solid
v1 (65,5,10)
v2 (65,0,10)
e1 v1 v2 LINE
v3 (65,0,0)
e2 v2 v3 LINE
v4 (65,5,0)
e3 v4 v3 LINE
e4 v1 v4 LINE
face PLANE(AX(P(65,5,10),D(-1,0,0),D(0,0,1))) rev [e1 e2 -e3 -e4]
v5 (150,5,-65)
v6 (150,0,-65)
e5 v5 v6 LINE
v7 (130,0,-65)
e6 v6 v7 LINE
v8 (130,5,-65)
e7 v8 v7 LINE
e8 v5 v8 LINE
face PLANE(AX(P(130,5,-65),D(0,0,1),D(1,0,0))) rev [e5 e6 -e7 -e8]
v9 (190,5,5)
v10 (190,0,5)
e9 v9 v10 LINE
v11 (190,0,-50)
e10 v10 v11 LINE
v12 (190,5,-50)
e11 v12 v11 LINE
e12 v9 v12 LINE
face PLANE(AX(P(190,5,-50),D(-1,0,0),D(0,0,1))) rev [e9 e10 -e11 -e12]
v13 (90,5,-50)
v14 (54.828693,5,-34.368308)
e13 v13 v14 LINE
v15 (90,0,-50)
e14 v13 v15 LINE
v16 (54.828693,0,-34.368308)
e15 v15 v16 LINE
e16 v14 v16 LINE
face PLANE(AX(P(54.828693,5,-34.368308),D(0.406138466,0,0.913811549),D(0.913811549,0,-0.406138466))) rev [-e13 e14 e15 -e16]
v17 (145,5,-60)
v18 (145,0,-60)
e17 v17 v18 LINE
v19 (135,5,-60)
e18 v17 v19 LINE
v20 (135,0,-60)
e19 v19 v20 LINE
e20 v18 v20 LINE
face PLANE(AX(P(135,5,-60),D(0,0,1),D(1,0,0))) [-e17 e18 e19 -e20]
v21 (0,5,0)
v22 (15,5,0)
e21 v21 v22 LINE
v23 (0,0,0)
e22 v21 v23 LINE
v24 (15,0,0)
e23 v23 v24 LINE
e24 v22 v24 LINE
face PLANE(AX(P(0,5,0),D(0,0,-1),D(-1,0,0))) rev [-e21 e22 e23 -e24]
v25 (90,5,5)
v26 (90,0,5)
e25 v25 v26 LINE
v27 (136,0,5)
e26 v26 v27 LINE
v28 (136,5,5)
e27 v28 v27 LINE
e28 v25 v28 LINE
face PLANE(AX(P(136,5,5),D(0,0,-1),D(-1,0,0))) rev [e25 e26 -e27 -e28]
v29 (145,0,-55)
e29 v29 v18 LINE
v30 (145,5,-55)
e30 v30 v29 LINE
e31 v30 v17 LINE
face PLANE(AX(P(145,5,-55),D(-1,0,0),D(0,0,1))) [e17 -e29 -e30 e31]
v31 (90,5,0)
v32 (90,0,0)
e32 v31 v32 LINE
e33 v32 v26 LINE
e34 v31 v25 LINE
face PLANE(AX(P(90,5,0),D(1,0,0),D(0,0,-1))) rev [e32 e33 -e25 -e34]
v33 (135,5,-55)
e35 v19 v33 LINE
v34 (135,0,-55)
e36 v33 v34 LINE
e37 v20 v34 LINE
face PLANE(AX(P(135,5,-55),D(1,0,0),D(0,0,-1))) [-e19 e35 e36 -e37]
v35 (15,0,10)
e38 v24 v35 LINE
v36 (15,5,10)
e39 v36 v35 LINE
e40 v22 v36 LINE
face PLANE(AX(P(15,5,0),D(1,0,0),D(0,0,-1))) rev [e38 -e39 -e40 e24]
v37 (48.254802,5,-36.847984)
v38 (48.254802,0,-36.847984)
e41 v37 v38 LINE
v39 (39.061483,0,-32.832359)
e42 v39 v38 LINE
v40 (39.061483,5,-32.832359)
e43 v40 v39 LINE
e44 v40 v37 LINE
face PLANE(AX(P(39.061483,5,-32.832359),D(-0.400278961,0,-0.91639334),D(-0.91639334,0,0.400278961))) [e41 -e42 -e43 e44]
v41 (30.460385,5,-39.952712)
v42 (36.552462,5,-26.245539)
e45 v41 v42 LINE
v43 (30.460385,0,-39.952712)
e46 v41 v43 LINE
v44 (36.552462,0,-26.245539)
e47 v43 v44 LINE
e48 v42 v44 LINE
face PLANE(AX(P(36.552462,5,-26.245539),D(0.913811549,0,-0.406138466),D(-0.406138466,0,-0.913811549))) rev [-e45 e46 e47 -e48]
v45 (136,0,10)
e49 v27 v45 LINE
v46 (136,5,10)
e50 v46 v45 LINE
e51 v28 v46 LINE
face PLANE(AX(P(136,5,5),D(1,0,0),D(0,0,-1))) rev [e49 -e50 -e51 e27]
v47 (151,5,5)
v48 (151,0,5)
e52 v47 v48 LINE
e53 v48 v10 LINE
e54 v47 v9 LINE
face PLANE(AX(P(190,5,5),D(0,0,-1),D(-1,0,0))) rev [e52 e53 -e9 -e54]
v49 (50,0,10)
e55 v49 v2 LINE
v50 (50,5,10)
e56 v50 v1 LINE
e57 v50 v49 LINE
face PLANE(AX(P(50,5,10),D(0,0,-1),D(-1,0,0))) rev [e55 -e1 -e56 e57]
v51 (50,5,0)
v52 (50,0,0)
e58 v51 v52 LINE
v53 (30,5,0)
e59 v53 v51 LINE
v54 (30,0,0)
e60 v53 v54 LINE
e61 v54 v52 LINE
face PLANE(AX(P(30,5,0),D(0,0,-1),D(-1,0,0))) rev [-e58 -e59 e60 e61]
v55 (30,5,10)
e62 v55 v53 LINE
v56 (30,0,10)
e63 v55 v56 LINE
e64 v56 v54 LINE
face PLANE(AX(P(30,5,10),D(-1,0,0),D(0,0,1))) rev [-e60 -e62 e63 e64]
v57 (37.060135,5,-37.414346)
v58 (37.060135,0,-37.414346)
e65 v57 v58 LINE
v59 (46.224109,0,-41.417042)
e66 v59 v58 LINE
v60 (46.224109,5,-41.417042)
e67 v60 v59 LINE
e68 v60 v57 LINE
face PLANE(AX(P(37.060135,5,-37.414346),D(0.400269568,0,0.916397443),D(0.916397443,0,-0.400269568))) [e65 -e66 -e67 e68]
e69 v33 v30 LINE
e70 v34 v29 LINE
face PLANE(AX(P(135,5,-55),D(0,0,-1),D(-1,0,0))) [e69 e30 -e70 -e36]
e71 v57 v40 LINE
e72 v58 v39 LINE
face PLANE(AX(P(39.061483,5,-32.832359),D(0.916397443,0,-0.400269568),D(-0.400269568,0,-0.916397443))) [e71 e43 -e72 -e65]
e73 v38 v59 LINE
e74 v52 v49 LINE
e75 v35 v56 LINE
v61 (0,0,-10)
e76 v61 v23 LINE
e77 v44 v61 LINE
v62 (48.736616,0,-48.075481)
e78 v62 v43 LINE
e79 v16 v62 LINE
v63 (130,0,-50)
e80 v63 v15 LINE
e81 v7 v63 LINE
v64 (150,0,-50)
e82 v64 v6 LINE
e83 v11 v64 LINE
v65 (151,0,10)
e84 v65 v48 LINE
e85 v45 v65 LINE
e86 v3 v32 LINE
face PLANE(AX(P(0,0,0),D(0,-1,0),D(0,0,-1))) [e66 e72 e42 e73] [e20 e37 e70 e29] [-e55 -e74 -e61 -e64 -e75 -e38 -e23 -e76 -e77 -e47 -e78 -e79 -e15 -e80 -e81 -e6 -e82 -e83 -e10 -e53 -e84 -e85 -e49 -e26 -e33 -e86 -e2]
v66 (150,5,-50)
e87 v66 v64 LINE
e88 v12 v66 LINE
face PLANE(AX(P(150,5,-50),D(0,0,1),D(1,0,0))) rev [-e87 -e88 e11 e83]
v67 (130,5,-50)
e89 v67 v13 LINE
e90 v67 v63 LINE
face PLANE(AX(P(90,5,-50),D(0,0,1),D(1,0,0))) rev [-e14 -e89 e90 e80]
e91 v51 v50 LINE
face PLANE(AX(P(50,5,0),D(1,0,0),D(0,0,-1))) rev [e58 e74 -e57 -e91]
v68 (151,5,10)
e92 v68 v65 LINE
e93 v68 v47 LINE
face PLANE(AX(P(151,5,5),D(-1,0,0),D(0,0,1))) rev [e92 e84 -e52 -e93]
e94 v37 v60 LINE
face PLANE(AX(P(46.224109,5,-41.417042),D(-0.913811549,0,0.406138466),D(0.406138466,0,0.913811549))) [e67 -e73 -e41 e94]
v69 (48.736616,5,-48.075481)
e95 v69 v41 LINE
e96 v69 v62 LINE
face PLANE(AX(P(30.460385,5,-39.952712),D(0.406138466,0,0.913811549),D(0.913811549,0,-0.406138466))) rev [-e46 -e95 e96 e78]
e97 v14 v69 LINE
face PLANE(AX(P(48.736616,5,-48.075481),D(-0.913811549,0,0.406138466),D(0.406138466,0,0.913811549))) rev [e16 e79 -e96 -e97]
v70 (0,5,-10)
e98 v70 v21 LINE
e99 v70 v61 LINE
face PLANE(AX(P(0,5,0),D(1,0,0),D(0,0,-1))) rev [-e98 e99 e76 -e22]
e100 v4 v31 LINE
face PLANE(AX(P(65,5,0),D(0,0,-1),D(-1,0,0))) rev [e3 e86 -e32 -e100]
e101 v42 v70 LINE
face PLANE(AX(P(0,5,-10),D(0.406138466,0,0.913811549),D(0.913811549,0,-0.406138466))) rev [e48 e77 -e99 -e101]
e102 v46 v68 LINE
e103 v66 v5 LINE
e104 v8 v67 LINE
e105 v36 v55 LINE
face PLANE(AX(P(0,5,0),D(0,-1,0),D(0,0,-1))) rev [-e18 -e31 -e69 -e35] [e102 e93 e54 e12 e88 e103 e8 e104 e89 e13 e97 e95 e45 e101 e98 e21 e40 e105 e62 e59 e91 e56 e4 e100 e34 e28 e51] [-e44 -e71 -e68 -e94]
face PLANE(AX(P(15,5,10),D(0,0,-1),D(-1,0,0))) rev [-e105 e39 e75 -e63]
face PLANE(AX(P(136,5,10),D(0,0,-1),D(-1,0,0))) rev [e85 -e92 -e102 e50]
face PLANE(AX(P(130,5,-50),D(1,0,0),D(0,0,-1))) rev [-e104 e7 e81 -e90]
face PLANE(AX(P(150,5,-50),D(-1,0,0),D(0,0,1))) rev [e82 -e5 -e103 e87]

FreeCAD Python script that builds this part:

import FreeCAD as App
import Part
import Sketcher

V = App.Vector

doc = App.newDocument("Part")
body = doc.addObject("PartDesign::Body", "Body")

sketch1 = body.newObject("Sketcher::SketchObject", "Sketch")
sketch1.AttachmentSupport = (doc.getObject("XZ_Plane"), [""])
sketch1.MapMode = "FlatFace"
sketch1.addGeometry([
    Part.LineSegment(V(0, 0, 0), V(15, 0, 0)),
    Part.LineSegment(V(15, 0, 0), V(15, 10, 0)),
    Part.LineSegment(V(15, 10, 0), V(30, 10, 0)),
    Part.LineSegment(V(30, 10, 0), V(30, 0, 0)),
    Part.LineSegment(V(30, 0, 0), V(50, 0, 0)),
    Part.LineSegment(V(50, 0, 0), V(50, 10, 0)),
    Part.LineSegment(V(50, 10, 0), V(65, 10, 0)),
    Part.LineSegment(V(65, 10, 0), V(65, 0, 0)),
    Part.LineSegment(V(65, 0, 0), V(90, 0, 0)),
    Part.LineSegment(V(90, 0, 0), V(90, 5, 0)),
    Part.LineSegment(V(90, 5, 0), V(136, 5, 0)),
    Part.LineSegment(V(136, 5, 0), V(136, 10, 0)),
    Part.LineSegment(V(136, 10, 0), V(151, 10, 0)),
    Part.LineSegment(V(151, 10, 0), V(151, 5, 0)),
    Part.LineSegment(V(151, 5, 0), V(190, 5, 0)),
    Part.LineSegment(V(190, 5, 0), V(190, -50, 0)),
    Part.LineSegment(V(190, -50, 0), V(150, -50, 0)),
    Part.LineSegment(V(150, -50, 0), V(150, -65, 0)),
    Part.LineSegment(V(150, -65, 0), V(130, -65, 0)),
    Part.LineSegment(V(130, -65, 0), V(130, -50, 0)),
    Part.LineSegment(V(130, -50, 0), V(90, -50, 0)),
    Part.LineSegment(V(90, -50, 0), V(54.8, -34.4, 0)),
    Part.LineSegment(V(54.8, -34.4, 0), V(48.7, -48.1, 0)),
    Part.LineSegment(V(48.7, -48.1, 0), V(30.5, -40, 0)),
    Part.LineSegment(V(30.5, -40, 0), V(36.6, -26.2, 0)),
    Part.LineSegment(V(36.6, -26.2, 0), V(0, -10, 0)),
    Part.LineSegment(V(0, -10, 0), V(0, 0, 0)),
    Part.LineSegment(V(48.3, -36.8, 0), V(39.1, -32.8, 0)),
    Part.LineSegment(V(39.1, -32.8, 0), V(37.1, -37.4, 0)),
    Part.LineSegment(V(37.1, -37.4, 0), V(46.2, -41.4, 0)),
    Part.LineSegment(V(46.2, -41.4, 0), V(48.3, -36.8, 0)),
    Part.LineSegment(V(145, -55, 0), V(135, -55, 0)),
    Part.LineSegment(V(135, -55, 0), V(135, -60, 0)),
    Part.LineSegment(V(135, -60, 0), V(145, -60, 0)),
    Part.LineSegment(V(145, -60, 0), V(145, -55, 0)),
], False)
sketch1.addConstraint([
    Sketcher.Constraint("Coincident", 0, 2, 1, 1),
    Sketcher.Constraint("Coincident", 1, 2, 2, 1),
    Sketcher.Constraint("Coincident", 2, 2, 3, 1),
    Sketcher.Constraint("Coincident", 3, 2, 4, 1),
    Sketcher.Constraint("Coincident", 4, 2, 5, 1),
    Sketcher.Constraint("Coincident", 5, 2, 6, 1),
    Sketcher.Constraint("Coincident", 6, 2, 7, 1),
    Sketcher.Constraint("Coincident", 7, 2, 8, 1),
    Sketcher.Constraint("Coincident", 8, 2, 9, 1),
    Sketcher.Constraint("Coincident", 9, 2, 10, 1),
    Sketcher.Constraint("Coincident", 10, 2, 11, 1),
    Sketcher.Constraint("Coincident", 11, 2, 12, 1),
    Sketcher.Constraint("Coincident", 12, 2, 13, 1),
    Sketcher.Constraint("Coincident", 13, 2, 14, 1),
    Sketcher.Constraint("Coincident", 14, 2, 15, 1),
    Sketcher.Constraint("Coincident", 15, 2, 16, 1),
    Sketcher.Constraint("Coincident", 16, 2, 17, 1),
    Sketcher.Constraint("Coincident", 17, 2, 18, 1),
    Sketcher.Constraint("Coincident", 18, 2, 19, 1),
    Sketcher.Constraint("Coincident", 19, 2, 20, 1),
    Sketcher.Constraint("Coincident", 20, 2, 21, 1),
    Sketcher.Constraint("Coincident", 21, 2, 22, 1),
    Sketcher.Constraint("Coincident", 22, 2, 23, 1),
    Sketcher.Constraint("Coincident", 23, 2, 24, 1),
    Sketcher.Constraint("Coincident", 24, 2, 25, 1),
    Sketcher.Constraint("Coincident", 25, 2, 26, 1),
    Sketcher.Constraint("Coincident", 26, 2, 0, 1),
    Sketcher.Constraint("Coincident", 27, 2, 28, 1),
    Sketcher.Constraint("Coincident", 28, 2, 29, 1),
    Sketcher.Constraint("Coincident", 29, 2, 30, 1),
    Sketcher.Constraint("Coincident", 30, 2, 27, 1),
    Sketcher.Constraint("Coincident", 31, 2, 32, 1),
    Sketcher.Constraint("Coincident", 32, 2, 33, 1),
    Sketcher.Constraint("Coincident", 33, 2, 34, 1),
    Sketcher.Constraint("Coincident", 34, 2, 31, 1),
    Sketcher.Constraint("Horizontal", 0),
    Sketcher.Constraint("Vertical", 1),
    Sketcher.Constraint("Horizontal", 2),
    Sketcher.Constraint("Vertical", 3),
    Sketcher.Constraint("Horizontal", 4),
    Sketcher.Constraint("Vertical", 5),
    Sketcher.Constraint("Horizontal", 6),
    Sketcher.Constraint("Vertical", 7),
    Sketcher.Constraint("Horizontal", 8),
    Sketcher.Constraint("Vertical", 9),
    Sketcher.Constraint("Horizontal", 10),
    Sketcher.Constraint("Vertical", 11),
    Sketcher.Constraint("Horizontal", 12),
    Sketcher.Constraint("Vertical", 13),
    Sketcher.Constraint("Horizontal", 14),
    Sketcher.Constraint("Vertical", 15),
    Sketcher.Constraint("Horizontal", 16),
    Sketcher.Constraint("Vertical", 17),
    Sketcher.Constraint("Horizontal", 18),
    Sketcher.Constraint("Vertical", 19),
    Sketcher.Constraint("Horizontal", 20),
    Sketcher.Constraint("Vertical", 26),
    Sketcher.Constraint("Horizontal", 31),
    Sketcher.Constraint("Vertical", 32),
    Sketcher.Constraint("Horizontal", 33),
    Sketcher.Constraint("Vertical", 34),
    Sketcher.Constraint("Coincident", 26, 2, -1, 1),
    Sketcher.Constraint("PointOnObject", 3, 2, -1),
    Sketcher.Constraint("PointOnObject", 7, 2, -1),
    Sketcher.Constraint("Perpendicular", 21, 22),
    Sketcher.Constraint("Perpendicular", 22, 23),
    Sketcher.Constraint("Perpendicular", 23, 24),
    Sketcher.Constraint("Perpendicular", 24, 25),
    Sketcher.Constraint("Perpendicular", 28, 29),
    Sketcher.Constraint("Perpendicular", 25, 30),
    Sketcher.Constraint("Horizontal", 2, 2, 5, 2),
    Sketcher.Constraint("Horizontal", 6, 2, 11, 2),
    Sketcher.Constraint("Horizontal", 10, 2, 13, 2),
    Sketcher.Constraint("Horizontal", 16, 2, 19, 2),
    Sketcher.Constraint("Vertical", 9, 2, 20, 2),
    Sketcher.Constraint("Equal", 0, 2),
    Sketcher.Constraint("Equal", 2, 6),
    Sketcher.Constraint("Equal", 6, 12),
    Sketcher.Constraint("Equal", 4, 18),
    Sketcher.Constraint("Equal", 16, 20),
    Sketcher.Constraint("Equal", 33, 1),
    Sketcher.Constraint("Equal", 9, 11),
    Sketcher.Constraint("Equal", 12, 17),
    Sketcher.Constraint("Equal", 7, 26),
    Sketcher.Constraint("Equal", 13, 32),
    Sketcher.Constraint("Equal", 22, 24),
    Sketcher.Constraint("Equal", 28, 30),
    Sketcher.Constraint("DistanceX", 0, 1, 0, 2, 15.0),
    Sketcher.Constraint("DistanceX", 4, 1, 4, 2, 20.0),
    Sketcher.Constraint("DistanceX", 8, 1, 8, 2, 25.0),
    Sketcher.Constraint("DistanceX", 10, 1, 10, 2, 46.0),
    Sketcher.Constraint("DistanceX", 14, 1, 14, 2, 39.0),
    Sketcher.Constraint("DistanceX", 31, 2, 31, 1, 10.0),
    Sketcher.Constraint("DistanceY", 15, 2, 15, 1, 55.0),
    Sketcher.Constraint("Distance", 22, 15.0),
    Sketcher.Constraint("Distance", 23, 20.0),
    Sketcher.Constraint("Distance", 25, 40.0),
    Sketcher.Constraint("Distance", 28, 5.0),
    Sketcher.Constraint("Distance", 29, 10.0),
    Sketcher.Constraint("DistanceX", -1, 1, 31, 2, 135.0),
    Sketcher.Constraint("DistanceY", 31, 2, -1, 1, 55.0),
    Sketcher.Constraint("DistanceX", -1, 1, 30, 2, 48.254802),
    Sketcher.Constraint("DistanceY", 27, 2, -1, 1, 32.832359),
    Sketcher.Constraint("DistanceX", 24, 2, 27, 2, 2.509021),
])
pad1 = body.newObject("PartDesign::Pad", "Pad")
pad1.Profile = sketch1
pad1.Length = 5
pad1.Reversed = True

doc.recompute()
